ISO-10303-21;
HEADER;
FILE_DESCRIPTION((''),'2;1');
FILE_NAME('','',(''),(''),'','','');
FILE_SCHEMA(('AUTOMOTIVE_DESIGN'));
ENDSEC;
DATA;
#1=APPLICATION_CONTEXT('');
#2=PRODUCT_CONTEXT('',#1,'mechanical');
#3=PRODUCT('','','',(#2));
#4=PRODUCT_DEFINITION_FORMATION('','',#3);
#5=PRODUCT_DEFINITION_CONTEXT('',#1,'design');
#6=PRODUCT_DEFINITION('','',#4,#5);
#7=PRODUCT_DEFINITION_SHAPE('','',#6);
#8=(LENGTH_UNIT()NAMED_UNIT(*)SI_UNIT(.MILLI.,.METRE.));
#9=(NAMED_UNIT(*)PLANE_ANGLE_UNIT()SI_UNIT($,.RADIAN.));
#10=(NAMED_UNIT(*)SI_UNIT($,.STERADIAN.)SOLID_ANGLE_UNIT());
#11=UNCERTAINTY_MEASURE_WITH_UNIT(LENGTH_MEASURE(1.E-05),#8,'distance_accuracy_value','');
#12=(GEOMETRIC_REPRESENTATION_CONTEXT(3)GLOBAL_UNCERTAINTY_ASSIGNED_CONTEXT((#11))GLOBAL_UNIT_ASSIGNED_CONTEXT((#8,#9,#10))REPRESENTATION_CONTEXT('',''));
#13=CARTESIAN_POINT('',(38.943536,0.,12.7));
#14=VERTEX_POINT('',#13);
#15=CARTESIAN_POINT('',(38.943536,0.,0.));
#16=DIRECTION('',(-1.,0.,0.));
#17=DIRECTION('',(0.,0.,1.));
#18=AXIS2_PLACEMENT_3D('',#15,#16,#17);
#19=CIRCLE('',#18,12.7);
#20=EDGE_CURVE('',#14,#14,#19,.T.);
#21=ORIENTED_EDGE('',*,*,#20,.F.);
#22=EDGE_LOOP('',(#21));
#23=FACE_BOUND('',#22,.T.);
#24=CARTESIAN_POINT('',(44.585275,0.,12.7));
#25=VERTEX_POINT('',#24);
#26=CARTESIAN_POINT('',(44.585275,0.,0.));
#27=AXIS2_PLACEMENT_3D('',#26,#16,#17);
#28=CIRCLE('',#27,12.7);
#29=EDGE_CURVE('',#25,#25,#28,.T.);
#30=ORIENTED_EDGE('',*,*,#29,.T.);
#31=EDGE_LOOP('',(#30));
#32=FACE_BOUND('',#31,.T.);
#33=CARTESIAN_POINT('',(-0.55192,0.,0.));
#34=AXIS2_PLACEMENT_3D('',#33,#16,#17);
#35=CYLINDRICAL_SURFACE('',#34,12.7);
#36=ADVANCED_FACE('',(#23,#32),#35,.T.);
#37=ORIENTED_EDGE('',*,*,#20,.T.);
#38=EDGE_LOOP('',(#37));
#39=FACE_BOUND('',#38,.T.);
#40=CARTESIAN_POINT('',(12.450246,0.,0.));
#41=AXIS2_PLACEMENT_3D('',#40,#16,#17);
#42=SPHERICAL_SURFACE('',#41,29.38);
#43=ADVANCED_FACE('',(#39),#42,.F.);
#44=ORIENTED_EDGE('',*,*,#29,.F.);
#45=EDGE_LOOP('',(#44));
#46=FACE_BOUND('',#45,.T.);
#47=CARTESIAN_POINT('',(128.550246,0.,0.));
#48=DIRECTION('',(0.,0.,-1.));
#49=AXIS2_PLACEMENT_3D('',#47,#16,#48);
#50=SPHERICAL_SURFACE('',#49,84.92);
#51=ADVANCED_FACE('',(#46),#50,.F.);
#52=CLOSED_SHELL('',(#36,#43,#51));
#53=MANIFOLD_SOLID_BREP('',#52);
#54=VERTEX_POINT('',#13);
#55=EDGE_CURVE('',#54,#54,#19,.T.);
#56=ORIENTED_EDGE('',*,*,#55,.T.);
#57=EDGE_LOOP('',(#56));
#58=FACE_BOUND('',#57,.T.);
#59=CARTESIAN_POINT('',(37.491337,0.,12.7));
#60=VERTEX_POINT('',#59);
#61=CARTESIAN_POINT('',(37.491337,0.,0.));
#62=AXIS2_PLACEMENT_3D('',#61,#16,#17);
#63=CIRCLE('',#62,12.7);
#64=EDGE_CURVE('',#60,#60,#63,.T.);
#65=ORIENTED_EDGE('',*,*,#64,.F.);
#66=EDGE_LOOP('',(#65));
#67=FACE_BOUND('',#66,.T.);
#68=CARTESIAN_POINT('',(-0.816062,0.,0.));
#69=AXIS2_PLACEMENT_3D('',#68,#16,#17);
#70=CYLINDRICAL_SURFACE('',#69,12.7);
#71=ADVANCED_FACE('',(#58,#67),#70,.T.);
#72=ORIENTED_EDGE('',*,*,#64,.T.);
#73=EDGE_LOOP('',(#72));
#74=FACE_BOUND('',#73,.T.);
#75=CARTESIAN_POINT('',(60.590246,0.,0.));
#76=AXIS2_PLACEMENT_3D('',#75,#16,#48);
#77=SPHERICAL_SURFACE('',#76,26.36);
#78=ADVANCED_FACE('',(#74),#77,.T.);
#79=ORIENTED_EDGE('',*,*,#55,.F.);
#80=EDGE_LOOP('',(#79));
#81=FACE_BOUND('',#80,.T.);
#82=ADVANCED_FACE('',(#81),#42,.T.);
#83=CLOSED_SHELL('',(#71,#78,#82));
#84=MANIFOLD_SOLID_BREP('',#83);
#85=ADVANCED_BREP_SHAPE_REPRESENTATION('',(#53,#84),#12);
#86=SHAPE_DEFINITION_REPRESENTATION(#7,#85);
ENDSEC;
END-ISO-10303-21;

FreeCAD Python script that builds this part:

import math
import FreeCAD as App
import Part
import Sketcher
from FreeCAD import Vector

doc = App.newDocument("Part")
body = doc.addObject("PartDesign::Body", "Body")

# Sketch on XZ plane
sketch1 = doc.addObject("Sketcher::SketchObject", "Sketch")
body.addObject(sketch1)
sketch1.AttachmentSupport = (doc.XZ_Plane, [""])
sketch1.MapMode = "FlatFace"
sketch1.addGeometry([
    Part.ArcOfCircle(Part.Circle(Vector(60.590246, 0, 0), Vector(0, 0, 1), 26.36), math.radians(-180), math.radians(-151.197586)),
    Part.LineSegment(Vector(34.230246, 0, 0), Vector(41.830246, 0, 0)),
    Part.ArcOfCircle(Part.Circle(Vector(12.450246, 0, 0), Vector(0, 0, 1), 29.38), math.radians(-25.611506), math.radians(0)),
    Part.LineSegment(Vector(38.943536, -12.7, 0), Vector(37.491337, -12.7, 0)),
], False)
sketch1.addConstraint([
    Sketcher.Constraint("Coincident", 0, 1, 1, 1),
    Sketcher.Constraint("Coincident", 1, 2, 2, 2),
    Sketcher.Constraint("Coincident", 2, 1, 3, 1),
    Sketcher.Constraint("Coincident", 3, 2, 0, 2),
    Sketcher.Constraint("Horizontal", 1),
    Sketcher.Constraint("Horizontal", 3),
    Sketcher.Constraint("PointOnObject", 0, 3, -1),
    Sketcher.Constraint("PointOnObject", 2, 3, -1),
    Sketcher.Constraint("PointOnObject", 0, 1, -1),
    Sketcher.Constraint("Radius", 0, 26.36),
    Sketcher.Constraint("Radius", 2, 29.38),
    Sketcher.Constraint("DistanceX", 1, 1, 1, 2, 7.6),
    Sketcher.Constraint("DistanceY", 2, 1, -1, 1, 12.7),
    Sketcher.Constraint("DistanceX", -1, 1, 0, 3, 60.590246),
])
revolution = doc.addObject("PartDesign::Revolution", "Revolution")
body.addObject(revolution)
revolution.Profile = sketch1
revolution.ReferenceAxis = (sketch1, ["H_Axis"])
revolution.Angle = 360
body2 = doc.addObject("PartDesign::Body", "Body001")

# Sketch on XZ plane
sketch2 = doc.addObject("Sketcher::SketchObject", "Sketch001")
body2.addObject(sketch2)
sketch2.AttachmentSupport = (doc.getObject("XZ_Plane001"), [""])
sketch2.MapMode = "FlatFace"
sketch2.addGeometry([
    Part.LineSegment(Vector(44.585275, -12.7, 0), Vector(38.943536, -12.7, 0)),
    Part.ArcOfCircle(Part.Circle(Vector(12.450246, 0, 0), Vector(0, 0, 1), 29.38), math.radians(-25.611506), math.radians(0)),
    Part.LineSegment(Vector(41.830246, 0, 0), Vector(43.630246, 0, 0)),
    Part.ArcOfCircle(Part.Circle(Vector(128.550247, 0, 0), Vector(0, 0, 1), 84.92), math.radians(-180), math.radians(-171.399005)),
], False)
sketch2.addConstraint([
    Sketcher.Constraint("Coincident", 0, 2, 1, 1),
    Sketcher.Constraint("Coincident", 1, 2, 2, 1),
    Sketcher.Constraint("Coincident", 2, 2, 3, 1),
    Sketcher.Constraint("Coincident", 3, 2, 0, 1),
    Sketcher.Constraint("Horizontal", 0),
    Sketcher.Constraint("Horizontal", 2),
    Sketcher.Constraint("PointOnObject", 1, 3, -1),
    Sketcher.Constraint("PointOnObject", 3, 3, -1),
    Sketcher.Constraint("PointOnObject", 1, 2, -1),
    Sketcher.Constraint("Radius", 1, 29.38),
    Sketcher.Constraint("Radius", 3, 84.92),
    Sketcher.Constraint("DistanceX", 2, 1, 2, 2, 1.8),
    Sketcher.Constraint("DistanceY", 0, 2, -1, 1, 12.7),
    Sketcher.Constraint("DistanceX", -1, 1, 1, 3, 12.450246),
])
revolution2 = doc.addObject("PartDesign::Revolution", "Revolution001")
body2.addObject(revolution2)
revolution2.Profile = sketch2
revolution2.ReferenceAxis = (sketch2, ["H_Axis"])
revolution2.Angle = 360

doc.recompute()
